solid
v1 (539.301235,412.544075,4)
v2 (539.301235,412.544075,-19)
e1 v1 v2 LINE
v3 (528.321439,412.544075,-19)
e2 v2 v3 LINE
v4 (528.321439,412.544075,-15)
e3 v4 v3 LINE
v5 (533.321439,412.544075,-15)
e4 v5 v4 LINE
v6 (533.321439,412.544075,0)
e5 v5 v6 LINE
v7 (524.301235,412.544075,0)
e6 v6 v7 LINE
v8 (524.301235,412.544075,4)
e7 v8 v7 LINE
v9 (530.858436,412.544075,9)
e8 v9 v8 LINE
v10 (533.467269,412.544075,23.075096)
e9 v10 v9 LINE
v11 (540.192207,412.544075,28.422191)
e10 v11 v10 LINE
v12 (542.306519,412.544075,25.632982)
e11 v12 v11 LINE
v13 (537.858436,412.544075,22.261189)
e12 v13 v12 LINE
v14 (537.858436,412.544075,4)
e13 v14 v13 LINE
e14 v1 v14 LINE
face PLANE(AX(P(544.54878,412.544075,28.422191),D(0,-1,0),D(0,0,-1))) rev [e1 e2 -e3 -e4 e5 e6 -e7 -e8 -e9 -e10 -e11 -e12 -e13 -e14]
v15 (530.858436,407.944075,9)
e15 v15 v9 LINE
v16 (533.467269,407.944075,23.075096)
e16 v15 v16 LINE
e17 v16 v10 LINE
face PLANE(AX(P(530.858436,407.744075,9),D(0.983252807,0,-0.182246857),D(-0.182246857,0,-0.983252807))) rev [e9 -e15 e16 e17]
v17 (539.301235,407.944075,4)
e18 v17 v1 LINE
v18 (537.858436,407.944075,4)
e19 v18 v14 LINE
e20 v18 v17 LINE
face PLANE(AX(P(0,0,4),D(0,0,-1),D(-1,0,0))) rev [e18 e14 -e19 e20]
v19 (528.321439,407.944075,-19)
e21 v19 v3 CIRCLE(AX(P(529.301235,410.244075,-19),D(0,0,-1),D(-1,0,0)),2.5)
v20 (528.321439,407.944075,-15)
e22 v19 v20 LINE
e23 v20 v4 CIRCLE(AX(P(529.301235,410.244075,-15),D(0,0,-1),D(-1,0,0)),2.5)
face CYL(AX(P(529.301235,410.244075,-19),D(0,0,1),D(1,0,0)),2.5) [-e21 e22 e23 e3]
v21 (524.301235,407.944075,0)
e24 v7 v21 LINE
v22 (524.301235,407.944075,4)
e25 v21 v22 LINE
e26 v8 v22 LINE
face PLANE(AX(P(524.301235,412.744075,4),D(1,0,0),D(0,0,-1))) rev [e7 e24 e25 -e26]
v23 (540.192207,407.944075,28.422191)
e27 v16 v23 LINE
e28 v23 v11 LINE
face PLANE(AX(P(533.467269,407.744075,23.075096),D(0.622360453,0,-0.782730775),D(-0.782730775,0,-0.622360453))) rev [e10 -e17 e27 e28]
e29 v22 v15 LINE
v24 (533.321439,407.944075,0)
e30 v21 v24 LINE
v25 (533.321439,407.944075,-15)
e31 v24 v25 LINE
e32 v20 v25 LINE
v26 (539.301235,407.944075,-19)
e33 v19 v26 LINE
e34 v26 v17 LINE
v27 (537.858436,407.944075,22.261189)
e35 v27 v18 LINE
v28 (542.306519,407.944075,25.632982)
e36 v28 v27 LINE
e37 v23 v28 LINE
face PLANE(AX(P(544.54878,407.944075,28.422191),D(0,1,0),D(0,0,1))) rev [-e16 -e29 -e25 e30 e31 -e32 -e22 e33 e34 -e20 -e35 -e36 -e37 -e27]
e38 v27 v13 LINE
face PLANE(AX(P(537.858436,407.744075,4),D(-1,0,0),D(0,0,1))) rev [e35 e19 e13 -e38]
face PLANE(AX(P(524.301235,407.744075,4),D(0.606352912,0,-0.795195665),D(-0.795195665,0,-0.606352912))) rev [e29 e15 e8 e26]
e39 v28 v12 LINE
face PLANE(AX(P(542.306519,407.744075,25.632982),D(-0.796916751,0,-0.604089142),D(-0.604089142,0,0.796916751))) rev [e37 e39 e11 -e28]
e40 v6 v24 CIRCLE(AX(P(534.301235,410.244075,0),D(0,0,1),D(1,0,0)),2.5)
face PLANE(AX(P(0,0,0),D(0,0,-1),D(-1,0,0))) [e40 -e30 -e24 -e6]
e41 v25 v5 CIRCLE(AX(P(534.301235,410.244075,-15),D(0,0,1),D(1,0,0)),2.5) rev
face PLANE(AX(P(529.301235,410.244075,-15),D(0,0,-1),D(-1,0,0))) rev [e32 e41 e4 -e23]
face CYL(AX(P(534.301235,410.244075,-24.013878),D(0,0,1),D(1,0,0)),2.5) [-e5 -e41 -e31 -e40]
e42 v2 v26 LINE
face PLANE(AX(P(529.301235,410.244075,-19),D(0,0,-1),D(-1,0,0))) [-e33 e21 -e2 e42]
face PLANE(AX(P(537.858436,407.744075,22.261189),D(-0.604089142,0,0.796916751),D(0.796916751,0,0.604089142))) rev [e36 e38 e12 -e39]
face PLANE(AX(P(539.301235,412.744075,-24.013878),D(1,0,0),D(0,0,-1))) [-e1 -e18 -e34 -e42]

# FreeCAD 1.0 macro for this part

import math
import FreeCAD as App
import Part
import Sketcher

doc = App.newDocument("Part")
params = doc.addObject("Spreadsheet::Sheet", "Params")
for row, (alias, value) in enumerate([
    ("sketch1_radius", "2.5 mm"),
    ("pad1_length", "15 mm"),
    ("sketch2_radius", "2.5 mm"),
    ("sketch2_width", "10 mm"),
    ("pad2_length", "4 mm"),
    ("sketch3_width", "15 mm"),
    ("sketch3_height", "5 mm"),
    ("pad3_length", "4 mm"),
    ("sketch4_length", "3.5 mm"),
    ("pad4_length", "5 mm"),
    ("sketch5_height", "0.2 mm"),
], start=1):
    params.set(f"A{row}", alias)
    params.set(f"B{row}", "=" + value)
    params.setAlias(f"B{row}", alias)

body = doc.addObject("PartDesign::Body", "Body")

# Sketch on XY plane
sketch1 = body.newObject("Sketcher::SketchObject", "Sketch")
sketch1.AttachmentSupport = (doc.getObject("XY_Plane"), [""])
sketch1.MapMode = "FlatFace"
sketch1.addGeometry([
    Part.LineSegment(App.Vector(539.3, 407.7, 0), App.Vector(539.3, 412.7, 0)),
    Part.LineSegment(App.Vector(539.3, 412.7, 0), App.Vector(534.3, 412.7, 0)),
    Part.ArcOfCircle(Part.Circle(App.Vector(534.3, 410.2, 0), App.Vector(0, 0, 1), 2.5), math.radians(90), math.radians(270)),
    Part.LineSegment(App.Vector(534.3, 407.7, 0), App.Vector(539.3, 407.7, 0)),
], False)
sketch1.addConstraint([
    Sketcher.Constraint("Coincident", 0, 2, 1, 1),
    Sketcher.Constraint("Tangent", 1, 2, 2, 1),
    Sketcher.Constraint("Tangent", 2, 2, 3, 1),
    Sketcher.Constraint("Coincident", 3, 2, 0, 1),
    Sketcher.Constraint("Vertical", 0),
    Sketcher.Constraint("Horizontal", 1),
    Sketcher.Constraint("Horizontal", 3),
    Sketcher.Constraint("Equal", 3, 0),
    Sketcher.Constraint("Radius", 2, 2.5),
    Sketcher.Constraint("DistanceX", -1, 1, 2, 3, 534.301235),
    Sketcher.Constraint("DistanceY", -1, 1, 2, 3, 410.244075),
])
sketch1.setExpression("Constraints[8]", "Params.sketch1_radius")
pad1 = body.newObject("PartDesign::Pad", "Pad")
pad1.Profile = sketch1
pad1.setExpression("Length", "Params.pad1_length")
pad1.Reversed = True

# Sketch on XY plane
sketch2 = body.newObject("Sketcher::SketchObject", "Sketch001")
sketch2.AttachmentSupport = (doc.getObject("XY_Plane"), [""])
sketch2.MapMode = "FlatFace"
sketch2.AttachmentOffset = App.Placement(App.Vector(0, 0, -15), App.Rotation())
sketch2.addGeometry([
    Part.LineSegment(App.Vector(529.3, 412.7, 0), App.Vector(539.3, 412.7, 0)),
    Part.LineSegment(App.Vector(539.3, 412.7, 0), App.Vector(539.3, 407.7, 0)),
    Part.LineSegment(App.Vector(539.3, 407.7, 0), App.Vector(529.3, 407.7, 0)),
    Part.ArcOfCircle(Part.Circle(App.Vector(529.3, 410.2, 0), App.Vector(0, 0, 1), 2.5), math.radians(90), math.radians(270)),
], False)
sketch2.addConstraint([
    Sketcher.Constraint("Coincident", 0, 2, 1, 1),
    Sketcher.Constraint("Coincident", 1, 2, 2, 1),
    Sketcher.Constraint("Tangent", 2, 2, 3, 2),
    Sketcher.Constraint("Tangent", 3, 1, 0, 1),
    Sketcher.Constraint("Horizontal", 0),
    Sketcher.Constraint("Vertical", 1),
    Sketcher.Constraint("Horizontal", 2),
    Sketcher.Constraint("Radius", 3, 2.5),
    Sketcher.Constraint("DistanceX", 0, 1, 0, 2, 10.0),
    Sketcher.Constraint("DistanceX", -1, 1, 3, 3, 529.301235),
    Sketcher.Constraint("DistanceY", -1, 1, 3, 3, 410.244075),
])
sketch2.setExpression("Constraints[7]", "Params.sketch2_radius")
sketch2.setExpression("Constraints[8]", "Params.sketch2_width")
pad2 = body.newObject("PartDesign::Pad", "Pad001")
pad2.Profile = sketch2
pad2.setExpression("Length", "Params.pad2_length")
pad2.Reversed = True

# Sketch on XY plane
sketch3 = body.newObject("Sketcher::SketchObject", "Sketch002")
sketch3.AttachmentSupport = (doc.getObject("XY_Plane"), [""])
sketch3.MapMode = "FlatFace"
sketch3.addGeometry([
    Part.LineSegment(App.Vector(524, 413, 0), App.Vector(524, 408, 0)),
    Part.LineSegment(App.Vector(524, 408, 0), App.Vector(539, 408, 0)),
    Part.LineSegment(App.Vector(539, 408, 0), App.Vector(539, 413, 0)),
    Part.LineSegment(App.Vector(539, 413, 0), App.Vector(524, 413, 0)),
], False)
sketch3.addConstraint([
    Sketcher.Constraint("Coincident", 0, 2, 1, 1),
    Sketcher.Constraint("Coincident", 1, 2, 2, 1),
    Sketcher.Constraint("Coincident", 2, 2, 3, 1),
    Sketcher.Constraint("Coincident", 3, 2, 0, 1),
    Sketcher.Constraint("Vertical", 0),
    Sketcher.Constraint("Horizontal", 1),
    Sketcher.Constraint("Vertical", 2),
    Sketcher.Constraint("Horizontal", 3),
    Sketcher.Constraint("DistanceX", 1, 1, 1, 2, 15.0),
    Sketcher.Constraint("DistanceY", 0, 2, 0, 1, 5.0),
    Sketcher.Constraint("DistanceX", -1, 1, 0, 2, 524.301235),
    Sketcher.Constraint("DistanceY", -1, 1, 0, 2, 407.744075),
])
sketch3.setExpression("Constraints[8]", "Params.sketch3_width")
sketch3.setExpression("Constraints[9]", "Params.sketch3_height")
pad3 = body.newObject("PartDesign::Pad", "Pad002")
pad3.Profile = sketch3
pad3.setExpression("Length", "Params.pad3_length")

# Sketch on XZ plane
sketch4 = body.newObject("Sketcher::SketchObject", "Sketch003")
sketch4.AttachmentSupport = (doc.getObject("XZ_Plane"), [""])
sketch4.MapMode = "FlatFace"
sketch4.AttachmentOffset = App.Placement(App.Vector(0, 0, -410.244075), App.Rotation())
sketch4.addGeometry([
    Part.LineSegment(App.Vector(524.3, 4, 0), App.Vector(537.9, 4, 0)),  # 0
    Part.LineSegment(App.Vector(537.9, 4, 0), App.Vector(537.9, 22.3, 0)),  # 1
    Part.LineSegment(App.Vector(537.9, 22.3, 0), App.Vector(542.3, 25.6, 0)),  # 2
    Part.LineSegment(App.Vector(542.3, 25.6, 0), App.Vector(540.2, 28.4, 0)),  # 3
    Part.LineSegment(App.Vector(540.2, 28.4, 0), App.Vector(533.5, 23.1, 0)),  # 4
    Part.LineSegment(App.Vector(533.5, 23.1, 0), App.Vector(530.9, 9, 0)),  # 5
    Part.LineSegment(App.Vector(530.9, 9, 0), App.Vector(524.3, 4, 0)),  # 6
], False)
sketch4.addConstraint([
    Sketcher.Constraint("Coincident", 0, 2, 1, 1),
    Sketcher.Constraint("Coincident", 1, 2, 2, 1),
    Sketcher.Constraint("Coincident", 2, 2, 3, 1),
    Sketcher.Constraint("Coincident", 3, 2, 4, 1),
    Sketcher.Constraint("Coincident", 4, 2, 5, 1),
    Sketcher.Constraint("Coincident", 5, 2, 6, 1),
    Sketcher.Constraint("Coincident", 6, 2, 0, 1),
    Sketcher.Constraint("Horizontal", 0),
    Sketcher.Constraint("Vertical", 1),
    Sketcher.Constraint("Perpendicular", 2, 3),
    Sketcher.Constraint("DistanceY", -1, 1, 0, 2, 4.0),
    Sketcher.Constraint("DistanceY", -1, 1, 5, 2, 9.0),
    Sketcher.Constraint("DistanceX", 5, 2, 0, 2, 7.0),
    Sketcher.Constraint("Distance", 3, 3.5),
    Sketcher.Constraint("DistanceX", 0, 1, 0, 2, 13.557202),
    Sketcher.Constraint("DistanceY", 1, 1, 1, 2, 18.261189),
    Sketcher.Constraint("Distance", 5, 14.314829),
    Sketcher.Constraint("DistanceX", -1, 1, 2, 2, 542.306519),
    Sketcher.Constraint("DistanceY", -1, 1, 3, 2, 28.422191),
    Sketcher.Constraint("DistanceX", -1, 1, 4, 2, 533.467269),
    Sketcher.Constraint("DistanceX", 3, 2, 2, 2, 2.114312),
])
sketch4.setExpression("Constraints[13]", "Params.sketch4_length")
pad4 = body.newObject("PartDesign::Pad", "Pad003")
pad4.Profile = sketch4
pad4.setExpression("Length", "Params.pad4_length")
pad4.Midplane = True

# Sketch on XY plane
sketch5 = body.newObject("Sketcher::SketchObject", "Sketch004")
sketch5.AttachmentSupport = (doc.getObject("XY_Plane"), [""])
sketch5.MapMode = "FlatFace"
sketch5.AttachmentOffset = App.Placement(App.Vector(0, 0, -19), App.Rotation())
sketch5.addGeometry([
    Part.LineSegment(App.Vector(544.55, 412.74, 0), App.Vector(544.55, 412.54, 0)),  # 0
    Part.LineSegment(App.Vector(544.55, 412.54, 0), App.Vector(522.46, 412.54, 0)),  # 1
    Part.LineSegment(App.Vector(522.46, 412.54, 0), App.Vector(522.46, 412.74, 0)),  # 2
    Part.LineSegment(App.Vector(522.46, 412.74, 0), App.Vector(544.55, 412.74, 0)),  # 3
    Part.LineSegment(App.Vector(544.55, 407.94, 0), App.Vector(544.55, 407.74, 0)),  # 4
    Part.LineSegment(App.Vector(544.55, 407.74, 0), App.Vector(522.46, 407.74, 0)),  # 5
    Part.LineSegment(App.Vector(522.46, 407.74, 0), App.Vector(522.46, 407.94, 0)),  # 6
    Part.LineSegment(App.Vector(522.46, 407.94, 0), App.Vector(544.55, 407.94, 0)),  # 7
], False)
sketch5.addConstraint([
    Sketcher.Constraint("Coincident", 0, 2, 1, 1),
    Sketcher.Constraint("Coincident", 1, 2, 2, 1),
    Sketcher.Constraint("Coincident", 2, 2, 3, 1),
    Sketcher.Constraint("Coincident", 3, 2, 0, 1),
    Sketcher.Constraint("Coincident", 4, 2, 5, 1),
    Sketcher.Constraint("Coincident", 5, 2, 6, 1),
    Sketcher.Constraint("Coincident", 6, 2, 7, 1),
    Sketcher.Constraint("Coincident", 7, 2, 4, 1),
    Sketcher.Constraint("Vertical", 0),
    Sketcher.Constraint("Horizontal", 1),
    Sketcher.Constraint("Vertical", 2),
    Sketcher.Constraint("Horizontal", 3),
    Sketcher.Constraint("Vertical", 4),
    Sketcher.Constraint("Horizontal", 5),
    Sketcher.Constraint("Vertical", 6),
    Sketcher.Constraint("Horizontal", 7),
    Sketcher.Constraint("Vertical", 3, 2, 4, 2),
    Sketcher.Constraint("Vertical", 2, 2, 5, 2),
    Sketcher.Constraint("Equal", 2, 4),
    Sketcher.Constraint("DistanceY", 0, 2, 0, 1, 0.2),
    Sketcher.Constraint("DistanceY", 4, 2, 3, 2, 5.0),
    Sketcher.Constraint("DistanceX", 1, 2, 1, 1, 22.09029),
    Sketcher.Constraint("DistanceX", -1, 1, 0, 2, 544.54878),
    Sketcher.Constraint("DistanceY", -1, 1, 0, 2, 412.544075),
])
sketch5.setExpression("Constraints[19]", "Params.sketch5_height")
pocket1 = body.newObject("PartDesign::Pocket", "Pocket")
pocket1.Profile = sketch5
pocket1.Type = "ThroughAll"
pocket1.Reversed = True

doc.recompute()
